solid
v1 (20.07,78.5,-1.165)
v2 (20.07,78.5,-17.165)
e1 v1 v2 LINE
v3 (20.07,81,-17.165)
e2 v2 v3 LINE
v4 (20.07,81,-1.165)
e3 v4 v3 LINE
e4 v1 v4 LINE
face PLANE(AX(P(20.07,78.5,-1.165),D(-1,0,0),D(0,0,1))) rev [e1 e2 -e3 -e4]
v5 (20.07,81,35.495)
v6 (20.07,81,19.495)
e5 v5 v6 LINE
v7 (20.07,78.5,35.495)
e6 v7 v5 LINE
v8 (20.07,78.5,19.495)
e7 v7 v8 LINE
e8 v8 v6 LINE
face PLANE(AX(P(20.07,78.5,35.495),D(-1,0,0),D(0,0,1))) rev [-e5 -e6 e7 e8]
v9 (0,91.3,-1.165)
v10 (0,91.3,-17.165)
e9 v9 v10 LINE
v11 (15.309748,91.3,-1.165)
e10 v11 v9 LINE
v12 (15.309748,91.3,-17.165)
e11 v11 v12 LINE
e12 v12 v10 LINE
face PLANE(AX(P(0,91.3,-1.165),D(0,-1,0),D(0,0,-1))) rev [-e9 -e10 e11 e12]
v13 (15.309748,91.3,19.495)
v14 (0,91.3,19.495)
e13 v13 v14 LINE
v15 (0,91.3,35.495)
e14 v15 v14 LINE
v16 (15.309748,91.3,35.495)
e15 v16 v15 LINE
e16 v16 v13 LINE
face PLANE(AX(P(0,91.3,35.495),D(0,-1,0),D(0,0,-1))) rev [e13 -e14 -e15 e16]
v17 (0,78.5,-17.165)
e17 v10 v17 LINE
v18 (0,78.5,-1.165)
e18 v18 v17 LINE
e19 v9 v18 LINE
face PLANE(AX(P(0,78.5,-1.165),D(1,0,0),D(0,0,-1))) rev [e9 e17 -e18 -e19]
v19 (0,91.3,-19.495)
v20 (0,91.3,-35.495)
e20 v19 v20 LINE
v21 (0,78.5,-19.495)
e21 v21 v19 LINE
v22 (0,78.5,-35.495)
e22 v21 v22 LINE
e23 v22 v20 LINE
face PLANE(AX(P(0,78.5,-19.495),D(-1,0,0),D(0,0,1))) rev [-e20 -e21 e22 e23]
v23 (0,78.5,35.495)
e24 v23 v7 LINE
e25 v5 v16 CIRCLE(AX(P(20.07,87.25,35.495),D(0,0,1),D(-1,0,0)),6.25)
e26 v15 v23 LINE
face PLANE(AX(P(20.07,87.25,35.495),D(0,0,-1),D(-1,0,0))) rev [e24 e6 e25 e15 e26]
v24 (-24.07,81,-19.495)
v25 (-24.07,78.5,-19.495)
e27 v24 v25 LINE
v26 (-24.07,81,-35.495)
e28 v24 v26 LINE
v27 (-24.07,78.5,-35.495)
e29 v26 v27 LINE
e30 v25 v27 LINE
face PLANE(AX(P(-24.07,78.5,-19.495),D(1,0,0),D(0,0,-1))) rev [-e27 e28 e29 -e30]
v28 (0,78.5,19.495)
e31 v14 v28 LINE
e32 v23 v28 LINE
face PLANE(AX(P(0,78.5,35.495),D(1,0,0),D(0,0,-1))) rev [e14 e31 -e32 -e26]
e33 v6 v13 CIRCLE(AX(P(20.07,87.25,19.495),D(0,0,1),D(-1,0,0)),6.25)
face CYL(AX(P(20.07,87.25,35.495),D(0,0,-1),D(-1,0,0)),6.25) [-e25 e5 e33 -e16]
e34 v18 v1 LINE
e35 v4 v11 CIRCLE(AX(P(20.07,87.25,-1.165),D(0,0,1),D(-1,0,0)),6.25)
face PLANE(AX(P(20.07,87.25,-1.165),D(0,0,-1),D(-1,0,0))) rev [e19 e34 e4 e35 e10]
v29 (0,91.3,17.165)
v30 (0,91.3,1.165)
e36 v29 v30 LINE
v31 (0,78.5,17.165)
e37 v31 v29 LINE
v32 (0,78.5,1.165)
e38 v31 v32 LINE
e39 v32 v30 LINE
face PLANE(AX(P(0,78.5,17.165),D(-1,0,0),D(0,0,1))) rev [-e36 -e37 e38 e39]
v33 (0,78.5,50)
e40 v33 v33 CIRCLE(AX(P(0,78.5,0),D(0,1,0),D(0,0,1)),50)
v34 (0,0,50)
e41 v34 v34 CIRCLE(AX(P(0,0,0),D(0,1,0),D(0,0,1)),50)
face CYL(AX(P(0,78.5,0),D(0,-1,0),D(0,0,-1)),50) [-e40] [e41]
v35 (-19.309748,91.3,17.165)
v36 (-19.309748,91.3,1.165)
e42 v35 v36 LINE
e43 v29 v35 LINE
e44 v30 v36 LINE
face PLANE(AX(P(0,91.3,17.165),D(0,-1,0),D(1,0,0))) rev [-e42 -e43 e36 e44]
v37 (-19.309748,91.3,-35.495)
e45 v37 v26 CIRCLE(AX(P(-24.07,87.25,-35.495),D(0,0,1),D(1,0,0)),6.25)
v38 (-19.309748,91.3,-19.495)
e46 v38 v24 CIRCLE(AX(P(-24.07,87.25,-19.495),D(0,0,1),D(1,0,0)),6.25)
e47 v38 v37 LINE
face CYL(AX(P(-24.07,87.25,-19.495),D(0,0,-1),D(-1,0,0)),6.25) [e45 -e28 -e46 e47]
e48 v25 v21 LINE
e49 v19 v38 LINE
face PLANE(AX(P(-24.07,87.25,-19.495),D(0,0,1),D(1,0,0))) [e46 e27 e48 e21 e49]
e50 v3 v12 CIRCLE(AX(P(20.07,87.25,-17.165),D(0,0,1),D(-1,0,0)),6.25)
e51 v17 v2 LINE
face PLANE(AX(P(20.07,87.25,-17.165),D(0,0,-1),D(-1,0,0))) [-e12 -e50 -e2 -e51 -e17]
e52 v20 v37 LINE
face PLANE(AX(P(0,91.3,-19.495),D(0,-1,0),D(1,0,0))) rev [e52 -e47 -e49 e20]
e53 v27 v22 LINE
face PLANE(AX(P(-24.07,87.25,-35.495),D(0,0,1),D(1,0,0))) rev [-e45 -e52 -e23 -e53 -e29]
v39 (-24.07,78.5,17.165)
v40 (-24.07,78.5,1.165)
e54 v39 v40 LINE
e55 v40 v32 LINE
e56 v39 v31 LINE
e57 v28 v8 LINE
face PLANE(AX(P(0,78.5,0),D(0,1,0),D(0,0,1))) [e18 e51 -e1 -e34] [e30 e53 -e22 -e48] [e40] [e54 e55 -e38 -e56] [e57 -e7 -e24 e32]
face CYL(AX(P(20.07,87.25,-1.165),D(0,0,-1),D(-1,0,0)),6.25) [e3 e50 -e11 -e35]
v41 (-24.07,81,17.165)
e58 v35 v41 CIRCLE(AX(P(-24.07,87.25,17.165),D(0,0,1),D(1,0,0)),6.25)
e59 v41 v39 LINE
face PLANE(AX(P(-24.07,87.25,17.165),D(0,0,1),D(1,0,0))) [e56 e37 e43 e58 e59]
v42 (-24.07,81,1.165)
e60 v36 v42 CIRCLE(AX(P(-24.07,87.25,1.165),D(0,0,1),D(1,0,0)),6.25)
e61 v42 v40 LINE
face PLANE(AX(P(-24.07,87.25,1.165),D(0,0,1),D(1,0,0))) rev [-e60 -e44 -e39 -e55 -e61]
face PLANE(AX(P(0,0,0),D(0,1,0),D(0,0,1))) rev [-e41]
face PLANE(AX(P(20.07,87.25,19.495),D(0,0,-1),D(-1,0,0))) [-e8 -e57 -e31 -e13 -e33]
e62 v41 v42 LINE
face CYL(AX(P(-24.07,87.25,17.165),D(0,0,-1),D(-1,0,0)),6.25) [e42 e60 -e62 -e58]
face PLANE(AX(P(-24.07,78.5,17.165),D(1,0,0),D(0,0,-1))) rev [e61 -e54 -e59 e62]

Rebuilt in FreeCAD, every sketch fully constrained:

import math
import FreeCAD as App
import Part
import Sketcher
from FreeCAD import Vector

doc = App.newDocument("Part")
body = doc.addObject("PartDesign::Body", "Body")

# Sketch on XZ plane
sketch1 = doc.addObject("Sketcher::SketchObject", "Sketch")
body.addObject(sketch1)
sketch1.AttachmentSupport = (doc.XZ_Plane, [""])
sketch1.MapMode = "FlatFace"
sketch1.addGeometry(Part.Circle(Vector(0, 0, 0), Vector(0, 0, 1), 50), False)
sketch1.addConstraint(Sketcher.Constraint("Coincident", 0, 3, -1, 1))
sketch1.addConstraint(Sketcher.Constraint("Diameter", 0, 100.0))
pad1 = doc.addObject("PartDesign::Pad", "Pad")
body.addObject(pad1)
pad1.Profile = sketch1
pad1.Length = 78.5
pad1.Reversed = True

# Sketch on XY plane
sketch2 = doc.addObject("Sketcher::SketchObject", "Sketch001")
body.addObject(sketch2)
sketch2.AttachmentSupport = (doc.XY_Plane, [""])
sketch2.MapMode = "FlatFace"
sketch2.AttachmentOffset = App.Placement(Vector(0, 0, 9.165), App.Rotation())
sketch2.addGeometry(Part.LineSegment(Vector(-24.07, 78.5, 0), Vector(0, 78.5, 0)), False)
sketch2.addGeometry(Part.LineSegment(Vector(0, 78.5, 0), Vector(0, 91.3, 0)), False)
sketch2.addGeometry(Part.LineSegment(Vector(0, 91.3, 0), Vector(-19.309748, 91.3, 0)), False)
sketch2.addGeometry(Part.ArcOfCircle(Part.Circle(Vector(-24.07, 87.25, 0), Vector(0, 0, 1), 6.25), math.radians(40.39098), math.radians(270)), False)
sketch2.addGeometry(Part.LineSegment(Vector(-24.07, 81, 0), Vector(-24.07, 78.5, 0)), False)
sketch2.addConstraint(Sketcher.Constraint("Coincident", 0, 2, 1, 1))
sketch2.addConstraint(Sketcher.Constraint("Coincident", 1, 2, 2, 1))
sketch2.addConstraint(Sketcher.Constraint("Coincident", 2, 2, 3, 1))
sketch2.addConstraint(Sketcher.Constraint("Coincident", 3, 2, 4, 1))
sketch2.addConstraint(Sketcher.Constraint("Coincident", 4, 2, 0, 1))
sketch2.addConstraint(Sketcher.Constraint("Horizontal", 0))
sketch2.addConstraint(Sketcher.Constraint("Vertical", 1))
sketch2.addConstraint(Sketcher.Constraint("Horizontal", 2))
sketch2.addConstraint(Sketcher.Constraint("Vertical", 4))
sketch2.addConstraint(Sketcher.Constraint("PointOnObject", 0, 2, -2))
sketch2.addConstraint(Sketcher.Constraint("Radius", 3, 6.25))
sketch2.addConstraint(Sketcher.Constraint("DistanceY", 1, 1, 1, 2, 12.8))
sketch2.addConstraint(Sketcher.Constraint("DistanceY", 4, 2, 4, 1, 2.5))
sketch2.addConstraint(Sketcher.Constraint("DistanceY", -1, 1, 3, 2, 81.0))
sketch2.addConstraint(Sketcher.Constraint("DistanceX", 0, 1, 0, 2, 24.07))
sketch2.addConstraint(Sketcher.Constraint("DistanceX", 3, 3, -1, 1, 24.07))
pad2 = doc.addObject("PartDesign::Pad", "Pad001")
body.addObject(pad2)
pad2.Profile = sketch2
pad2.Length = 16
pad2.Midplane = True
doc.recompute()

linearpattern = doc.addObject("PartDesign::LinearPattern", "LinearPattern")
body.addObject(linearpattern)
linearpattern.Originals = [pad2]
linearpattern.Direction = (doc.Z_Axis, [""])
linearpattern.Mode = "offset"
linearpattern.Offset = 36.66
linearpattern.Occurrences = 2
linearpattern.Reversed = True
body.Tip = linearpattern

# Sketch on XY plane
sketch3 = doc.addObject("Sketcher::SketchObject", "Sketch002")
body.addObject(sketch3)
sketch3.AttachmentSupport = (doc.XY_Plane, [""])
sketch3.MapMode = "FlatFace"
sketch3.AttachmentOffset = App.Placement(Vector(0, 0, 27.495), App.Rotation())
sketch3.addGeometry(Part.LineSegment(Vector(15.309748, 91.3, 0), Vector(0, 91.3, 0)), False)
sketch3.addGeometry(Part.LineSegment(Vector(0, 91.3, 0), Vector(0, 78.5, 0)), False)
sketch3.addGeometry(Part.LineSegment(Vector(0, 78.5, 0), Vector(20.07, 78.5, 0)), False)
sketch3.addGeometry(Part.LineSegment(Vector(20.07, 78.5, 0), Vector(20.07, 81, 0)), False)
sketch3.addGeometry(Part.ArcOfCircle(Part.Circle(Vector(20.07, 87.25, 0), Vector(0, 0, 1), 6.25), math.radians(-90), math.radians(139.60902)), False)
sketch3.addConstraint(Sketcher.Constraint("Coincident", 0, 2, 1, 1))
sketch3.addConstraint(Sketcher.Constraint("Coincident", 1, 2, 2, 1))
sketch3.addConstraint(Sketcher.Constraint("Coincident", 2, 2, 3, 1))
sketch3.addConstraint(Sketcher.Constraint("Coincident", 3, 2, 4, 1))
sketch3.addConstraint(Sketcher.Constraint("Coincident", 4, 2, 0, 1))
sketch3.addConstraint(Sketcher.Constraint("Horizontal", 0))
sketch3.addConstraint(Sketcher.Constraint("Vertical", 1))
sketch3.addConstraint(Sketcher.Constraint("Horizontal", 2))
sketch3.addConstraint(Sketcher.Constraint("Vertical", 3))
sketch3.addConstraint(Sketcher.Constraint("PointOnObject", 0, 2, -2))
sketch3.addConstraint(Sketcher.Constraint("Vertical", 4, 3, 2, 2))
sketch3.addConstraint(Sketcher.Constraint("Radius", 4, 6.25))
sketch3.addConstraint(Sketcher.Constraint("DistanceY", 1, 2, 1, 1, 12.8))
sketch3.addConstraint(Sketcher.Constraint("DistanceY", 3, 1, 3, 2, 2.5))
sketch3.addConstraint(Sketcher.Constraint("DistanceY", -1, 1, 3, 2, 81.0))
sketch3.addConstraint(Sketcher.Constraint("DistanceX", 2, 1, 2, 2, 20.07))
pad3 = doc.addObject("PartDesign::Pad", "Pad002")
body.addObject(pad3)
pad3.Profile = sketch3
pad3.Length = 16
pad3.Midplane = True
doc.recompute()

linearpattern2 = doc.addObject("PartDesign::LinearPattern", "LinearPattern001")
body.addObject(linearpattern2)
linearpattern2.Originals = [pad3]
linearpattern2.Direction = (doc.Z_Axis, [""])
linearpattern2.Mode = "offset"
linearpattern2.Offset = 36.66
linearpattern2.Occurrences = 2
linearpattern2.Reversed = True
body.Tip = linearpattern2

doc.recompute()
